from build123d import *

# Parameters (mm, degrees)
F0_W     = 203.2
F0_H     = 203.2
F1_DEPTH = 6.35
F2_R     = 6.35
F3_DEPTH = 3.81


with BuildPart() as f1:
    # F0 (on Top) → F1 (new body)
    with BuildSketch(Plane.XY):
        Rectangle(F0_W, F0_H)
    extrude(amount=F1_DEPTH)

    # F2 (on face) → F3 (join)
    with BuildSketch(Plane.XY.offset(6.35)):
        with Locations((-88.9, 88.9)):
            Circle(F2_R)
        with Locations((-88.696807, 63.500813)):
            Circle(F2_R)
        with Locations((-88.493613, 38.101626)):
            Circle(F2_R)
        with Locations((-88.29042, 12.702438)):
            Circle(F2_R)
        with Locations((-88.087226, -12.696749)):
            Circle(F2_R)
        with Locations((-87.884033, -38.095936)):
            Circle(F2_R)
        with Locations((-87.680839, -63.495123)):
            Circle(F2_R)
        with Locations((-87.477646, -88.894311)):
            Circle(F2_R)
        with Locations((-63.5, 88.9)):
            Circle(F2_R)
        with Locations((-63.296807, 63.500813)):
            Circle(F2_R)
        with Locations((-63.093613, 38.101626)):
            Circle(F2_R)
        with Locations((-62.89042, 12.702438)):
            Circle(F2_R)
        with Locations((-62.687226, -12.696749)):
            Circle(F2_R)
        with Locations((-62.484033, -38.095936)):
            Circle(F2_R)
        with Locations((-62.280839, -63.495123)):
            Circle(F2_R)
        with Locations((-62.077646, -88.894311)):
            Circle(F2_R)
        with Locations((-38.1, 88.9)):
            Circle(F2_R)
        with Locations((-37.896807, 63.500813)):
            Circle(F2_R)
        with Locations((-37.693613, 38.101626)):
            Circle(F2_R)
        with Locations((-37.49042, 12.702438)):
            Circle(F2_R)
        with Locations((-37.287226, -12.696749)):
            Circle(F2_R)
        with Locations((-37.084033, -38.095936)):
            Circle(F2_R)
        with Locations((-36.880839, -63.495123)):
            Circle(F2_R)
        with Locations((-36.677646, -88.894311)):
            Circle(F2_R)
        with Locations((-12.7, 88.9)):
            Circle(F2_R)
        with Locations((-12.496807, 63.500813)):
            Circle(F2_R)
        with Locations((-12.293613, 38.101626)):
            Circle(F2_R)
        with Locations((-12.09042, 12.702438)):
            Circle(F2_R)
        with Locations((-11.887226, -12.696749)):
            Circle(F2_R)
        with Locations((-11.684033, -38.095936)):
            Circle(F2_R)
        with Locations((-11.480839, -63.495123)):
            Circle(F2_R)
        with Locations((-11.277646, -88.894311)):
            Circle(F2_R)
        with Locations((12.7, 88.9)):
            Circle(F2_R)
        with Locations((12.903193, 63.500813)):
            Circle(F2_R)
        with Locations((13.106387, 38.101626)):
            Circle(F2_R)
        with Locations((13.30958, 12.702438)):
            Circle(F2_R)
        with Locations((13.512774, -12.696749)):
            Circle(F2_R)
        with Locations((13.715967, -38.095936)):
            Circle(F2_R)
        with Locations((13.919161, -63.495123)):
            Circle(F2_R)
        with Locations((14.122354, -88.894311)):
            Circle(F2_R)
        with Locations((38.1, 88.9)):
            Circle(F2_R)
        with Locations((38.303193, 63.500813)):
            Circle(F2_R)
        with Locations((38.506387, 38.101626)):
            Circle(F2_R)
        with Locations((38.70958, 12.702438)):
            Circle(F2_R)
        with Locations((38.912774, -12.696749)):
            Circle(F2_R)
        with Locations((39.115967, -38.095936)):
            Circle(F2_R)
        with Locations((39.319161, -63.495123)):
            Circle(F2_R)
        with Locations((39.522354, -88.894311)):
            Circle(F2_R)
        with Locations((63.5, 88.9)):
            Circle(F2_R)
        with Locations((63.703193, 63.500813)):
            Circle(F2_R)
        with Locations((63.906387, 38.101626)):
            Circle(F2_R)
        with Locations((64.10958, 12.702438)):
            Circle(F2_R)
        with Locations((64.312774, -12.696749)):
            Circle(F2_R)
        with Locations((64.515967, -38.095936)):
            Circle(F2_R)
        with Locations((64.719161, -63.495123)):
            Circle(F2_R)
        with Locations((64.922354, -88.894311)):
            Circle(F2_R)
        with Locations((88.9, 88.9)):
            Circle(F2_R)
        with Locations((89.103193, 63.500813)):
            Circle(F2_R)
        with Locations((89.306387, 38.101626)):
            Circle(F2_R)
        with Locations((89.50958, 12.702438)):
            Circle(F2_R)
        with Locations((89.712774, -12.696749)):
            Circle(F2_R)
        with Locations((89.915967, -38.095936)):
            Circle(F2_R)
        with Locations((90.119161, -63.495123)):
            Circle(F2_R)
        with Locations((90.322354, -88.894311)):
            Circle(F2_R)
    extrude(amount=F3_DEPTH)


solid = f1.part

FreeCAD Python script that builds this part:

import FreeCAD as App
import Part
import Sketcher

V = App.Vector
Q = App.Units.Quantity

doc = App.newDocument("Part")
body = doc.addObject("PartDesign::Body", "Body")

# Sketch on XY plane
sketch1 = doc.addObject("Sketcher::SketchObject", "Sketch")
body.addObject(sketch1)
sketch1.AttachmentSupport = (doc.XY_Plane, [""])
sketch1.MapMode = "FlatFace"
sketch1.addGeometry([
    Part.LineSegment(V(-102, 102, 0), V(-102, -102, 0)),
    Part.LineSegment(V(-102, -102, 0), V(102, -102, 0)),
    Part.LineSegment(V(102, -102, 0), V(102, 102, 0)),
    Part.LineSegment(V(102, 102, 0), V(-102, 102, 0)),
], False)
sketch1.addConstraint([
    Sketcher.Constraint("Coincident", 0, 2, 1, 1),
    Sketcher.Constraint("Coincident", 1, 2, 2, 1),
    Sketcher.Constraint("Coincident", 2, 2, 3, 1),
    Sketcher.Constraint("Coincident", 3, 2, 0, 1),
    Sketcher.Constraint("Vertical", 0),
    Sketcher.Constraint("Horizontal", 1),
    Sketcher.Constraint("Vertical", 2),
    Sketcher.Constraint("Horizontal", 3),
    Sketcher.Constraint("Symmetric", 0, 2, 2, 2, -1, 1),
    Sketcher.Constraint("Equal", 3, 0),
    Sketcher.Constraint("DistanceX", 1, 1, 1, 2, Q("8 in")),
])
pad1 = doc.addObject("PartDesign::Pad", "Pad")
body.addObject(pad1)
pad1.Profile = sketch1
pad1.Length = Q("0.25 in")

# Sketch on XY plane
sketch2 = doc.addObject("Sketcher::SketchObject", "Sketch001")
body.addObject(sketch2)
sketch2.AttachmentSupport = (doc.XY_Plane, [""])
sketch2.MapMode = "FlatFace"
sketch2.AttachmentOffset = App.Placement(V(0, 0, 0.25 * 25.4), App.Rotation())
sketch2.addGeometry([
    Part.Circle(V(-89, 89, 0), V(0, 0, 1), 6),  # 0
    Part.Circle(V(-89, 64, 0), V(0, 0, 1), 6),  # 1
    Part.Circle(V(-88, 38, 0), V(0, 0, 1), 6),  # 2
    Part.Circle(V(-88, 13, 0), V(0, 0, 1), 6),  # 3
    Part.Circle(V(-88, -13, 0), V(0, 0, 1), 6),  # 4
    Part.Circle(V(-88, -38, 0), V(0, 0, 1), 6),  # 5
    Part.Circle(V(-88, -63, 0), V(0, 0, 1), 6),  # 6
    Part.Circle(V(-87, -89, 0), V(0, 0, 1), 6),  # 7
    Part.Circle(V(-64, 89, 0), V(0, 0, 1), 6),  # 8
    Part.Circle(V(-63, 64, 0), V(0, 0, 1), 6),  # 9
    Part.Circle(V(-63, 38, 0), V(0, 0, 1), 6),  # 10
    Part.Circle(V(-63, 13, 0), V(0, 0, 1), 6),  # 11
    Part.Circle(V(-63, -13, 0), V(0, 0, 1), 6),  # 12
    Part.Circle(V(-62, -38, 0), V(0, 0, 1), 6),  # 13
    Part.Circle(V(-62, -63, 0), V(0, 0, 1), 6),  # 14
    Part.Circle(V(-62, -89, 0), V(0, 0, 1), 6),  # 15
    Part.Circle(V(-38, 89, 0), V(0, 0, 1), 6),  # 16
    Part.Circle(V(-38, 64, 0), V(0, 0, 1), 6),  # 17
    Part.Circle(V(-38, 38, 0), V(0, 0, 1), 6),  # 18
    Part.Circle(V(-37, 13, 0), V(0, 0, 1), 6),  # 19
    Part.Circle(V(-37, -13, 0), V(0, 0, 1), 6),  # 20
    Part.Circle(V(-37, -38, 0), V(0, 0, 1), 6),  # 21
    Part.Circle(V(-37, -63, 0), V(0, 0, 1), 6),  # 22
    Part.Circle(V(-37, -89, 0), V(0, 0, 1), 6),  # 23
    Part.Circle(V(-13, 89, 0), V(0, 0, 1), 6),  # 24
    Part.Circle(V(-12, 64, 0), V(0, 0, 1), 6),  # 25
    Part.Circle(V(-12, 38, 0), V(0, 0, 1), 6),  # 26
    Part.Circle(V(-12, 13, 0), V(0, 0, 1), 6),  # 27
    Part.Circle(V(-12, -13, 0), V(0, 0, 1), 6),  # 28
    Part.Circle(V(-12, -38, 0), V(0, 0, 1), 6),  # 29
    Part.Circle(V(-11, -63, 0), V(0, 0, 1), 6),  # 30
    Part.Circle(V(-11, -89, 0), V(0, 0, 1), 6),  # 31
    Part.Circle(V(13, 89, 0), V(0, 0, 1), 6),  # 32
    Part.Circle(V(13, 64, 0), V(0, 0, 1), 6),  # 33
    Part.Circle(V(13, 38, 0), V(0, 0, 1), 6),  # 34
    Part.Circle(V(13, 13, 0), V(0, 0, 1), 6),  # 35
    Part.Circle(V(14, -13, 0), V(0, 0, 1), 6),  # 36
    Part.Circle(V(14, -38, 0), V(0, 0, 1), 6),  # 37
    Part.Circle(V(14, -63, 0), V(0, 0, 1), 6),  # 38
    Part.Circle(V(14, -89, 0), V(0, 0, 1), 6),  # 39
    Part.Circle(V(38, 89, 0), V(0, 0, 1), 6),  # 40
    Part.Circle(V(38, 64, 0), V(0, 0, 1), 6),  # 41
    Part.Circle(V(39, 38, 0), V(0, 0, 1), 6),  # 42
    Part.Circle(V(39, 13, 0), V(0, 0, 1), 6),  # 43
    Part.Circle(V(39, -13, 0), V(0, 0, 1), 6),  # 44
    Part.Circle(V(39, -38, 0), V(0, 0, 1), 6),  # 45
    Part.Circle(V(39, -63, 0), V(0, 0, 1), 6),  # 46
    Part.Circle(V(40, -89, 0), V(0, 0, 1), 6),  # 47
    Part.Circle(V(64, 89, 0), V(0, 0, 1), 6),  # 48
    Part.Circle(V(64, 64, 0), V(0, 0, 1), 6),  # 49
    Part.Circle(V(64, 38, 0), V(0, 0, 1), 6),  # 50
    Part.Circle(V(64, 13, 0), V(0, 0, 1), 6),  # 51
    Part.Circle(V(64, -13, 0), V(0, 0, 1), 6),  # 52
    Part.Circle(V(65, -38, 0), V(0, 0, 1), 6),  # 53
    Part.Circle(V(65, -63, 0), V(0, 0, 1), 6),  # 54
    Part.Circle(V(65, -89, 0), V(0, 0, 1), 6),  # 55
    Part.Circle(V(89, 89, 0), V(0, 0, 1), 6),  # 56
    Part.Circle(V(89, 64, 0), V(0, 0, 1), 6),  # 57
    Part.Circle(V(89, 38, 0), V(0, 0, 1), 6),  # 58
    Part.Circle(V(90, 13, 0), V(0, 0, 1), 6),  # 59
    Part.Circle(V(90, -13, 0), V(0, 0, 1), 6),  # 60
    Part.Circle(V(90, -38, 0), V(0, 0, 1), 6),  # 61
    Part.Circle(V(90, -63, 0), V(0, 0, 1), 6),  # 62
    Part.Circle(V(90, -89, 0), V(0, 0, 1), 6),  # 63
], False)
sketch2.addConstraint([
    Sketcher.Constraint("Equal", 0, 1),
    Sketcher.Constraint("Equal", 1, 2),
    Sketcher.Constraint("Equal", 2, 3),
    Sketcher.Constraint("Equal", 3, 4),
    Sketcher.Constraint("Equal", 4, 5),
    Sketcher.Constraint("Equal", 5, 6),
    Sketcher.Constraint("Equal", 6, 7),
    Sketcher.Constraint("Equal", 7, 8),
    Sketcher.Constraint("Equal", 8, 9),
    Sketcher.Constraint("Equal", 9, 10),
    Sketcher.Constraint("Equal", 10, 11),
    Sketcher.Constraint("Equal", 11, 12),
    Sketcher.Constraint("Equal", 12, 13),
    Sketcher.Constraint("Equal", 13, 14),
    Sketcher.Constraint("Equal", 14, 15),
    Sketcher.Constraint("Equal", 15, 16),
    Sketcher.Constraint("Equal", 16, 17),
    Sketcher.Constraint("Equal", 17, 18),
    Sketcher.Constraint("Equal", 18, 19),
    Sketcher.Constraint("Equal", 19, 20),
    Sketcher.Constraint("Equal", 20, 21),
    Sketcher.Constraint("Equal", 21, 22),
    Sketcher.Constraint("Equal", 22, 23),
    Sketcher.Constraint("Equal", 23, 24),
    Sketcher.Constraint("Equal", 24, 25),
    Sketcher.Constraint("Equal", 25, 26),
    Sketcher.Constraint("Equal", 26, 27),
    Sketcher.Constraint("Equal", 27, 28),
    Sketcher.Constraint("Equal", 28, 29),
    Sketcher.Constraint("Equal", 29, 30),
    Sketcher.Constraint("Equal", 30, 31),
    Sketcher.Constraint("Equal", 31, 32),
    Sketcher.Constraint("Equal", 32, 33),
    Sketcher.Constraint("Equal", 33, 34),
    Sketcher.Constraint("Equal", 34, 35),
    Sketcher.Constraint("Equal", 35, 36),
    Sketcher.Constraint("Equal", 36, 37),
    Sketcher.Constraint("Equal", 37, 38),
    Sketcher.Constraint("Equal", 38, 39),
    Sketcher.Constraint("Equal", 39, 40),
    Sketcher.Constraint("Equal", 40, 41),
    Sketcher.Constraint("Equal", 41, 42),
    Sketcher.Constraint("Equal", 42, 43),
    Sketcher.Constraint("Equal", 43, 44),
    Sketcher.Constraint("Equal", 44, 45),
    Sketcher.Constraint("Equal", 45, 46),
    Sketcher.Constraint("Equal", 46, 47),
    Sketcher.Constraint("Equal", 47, 48),
    Sketcher.Constraint("Equal", 48, 49),
    Sketcher.Constraint("Equal", 49, 50),
    Sketcher.Constraint("Equal", 50, 51),
    Sketcher.Constraint("Equal", 51, 52),
    Sketcher.Constraint("Equal", 52, 53),
    Sketcher.Constraint("Equal", 53, 54),
    Sketcher.Constraint("Equal", 54, 55),
    Sketcher.Constraint("Equal", 55, 56),
    Sketcher.Constraint("Equal", 56, 57),
    Sketcher.Constraint("Equal", 57, 58),
    Sketcher.Constraint("Equal", 58, 59),
    Sketcher.Constraint("Equal", 59, 60),
    Sketcher.Constraint("Equal", 60, 61),
    Sketcher.Constraint("Equal", 61, 62),
    Sketcher.Constraint("Equal", 62, 63),
    Sketcher.Constraint("Symmetric", 24, 3, 32, 3, -2),
    Sketcher.Constraint("Symmetric", 16, 3, 40, 3, -2),
    Sketcher.Constraint("Symmetric", 8, 3, 48, 3, -2),
    Sketcher.Constraint("Symmetric", 0, 3, 56, 3, -2),
    Sketcher.Constraint("Horizontal", 0, 3, 8, 3),
    Sketcher.Constraint("Horizontal", 1, 3, 9, 3),
    Sketcher.Constraint("Horizontal", 2, 3, 10, 3),
    Sketcher.Constraint("Horizontal", 3, 3, 11, 3),
    Sketcher.Constraint("Horizontal", 4, 3, 12, 3),
    Sketcher.Constraint("Horizontal", 5, 3, 13, 3),
    Sketcher.Constraint("Horizontal", 6, 3, 14, 3),
    Sketcher.Constraint("Horizontal", 7, 3, 15, 3),
    Sketcher.Constraint("Horizontal", 8, 3, 16, 3),
    Sketcher.Constraint("Horizontal", 9, 3, 17, 3),
    Sketcher.Constraint("Horizontal", 10, 3, 18, 3),
    Sketcher.Constraint("Horizontal", 11, 3, 19, 3),
    Sketcher.Constraint("Horizontal", 12, 3, 20, 3),
    Sketcher.Constraint("Horizontal", 13, 3, 21, 3),
    Sketcher.Constraint("Horizontal", 14, 3, 22, 3),
    Sketcher.Constraint("Horizontal", 15, 3, 23, 3),
    Sketcher.Constraint("Horizontal", 16, 3, 24, 3),
    Sketcher.Constraint("Horizontal", 17, 3, 25, 3),
    Sketcher.Constraint("Horizontal", 18, 3, 26, 3),
    Sketcher.Constraint("Horizontal", 19, 3, 27, 3),
    Sketcher.Constraint("Horizontal", 20, 3, 28, 3),
    Sketcher.Constraint("Horizontal", 21, 3, 29, 3),
    Sketcher.Constraint("Horizontal", 22, 3, 30, 3),
    Sketcher.Constraint("Horizontal", 23, 3, 31, 3),
    Sketcher.Constraint("Horizontal", 25, 3, 33, 3),
    Sketcher.Constraint("Horizontal", 26, 3, 34, 3),
    Sketcher.Constraint("Horizontal", 27, 3, 35, 3),
    Sketcher.Constraint("Horizontal", 28, 3, 36, 3),
    Sketcher.Constraint("Horizontal", 29, 3, 37, 3),
    Sketcher.Constraint("Horizontal", 30, 3, 38, 3),
    Sketcher.Constraint("Horizontal", 31, 3, 39, 3),
    Sketcher.Constraint("Horizontal", 33, 3, 41, 3),
    Sketcher.Constraint("Horizontal", 34, 3, 42, 3),
    Sketcher.Constraint("Horizontal", 35, 3, 43, 3),
    Sketcher.Constraint("Horizontal", 36, 3, 44, 3),
    Sketcher.Constraint("Horizontal", 37, 3, 45, 3),
    Sketcher.Constraint("Horizontal", 38, 3, 46, 3),
    Sketcher.Constraint("Horizontal", 39, 3, 47, 3),
    Sketcher.Constraint("Horizontal", 41, 3, 49, 3),
    Sketcher.Constraint("Horizontal", 42, 3, 50, 3),
    Sketcher.Constraint("Horizontal", 43, 3, 51, 3),
    Sketcher.Constraint("Horizontal", 44, 3, 52, 3),
    Sketcher.Constraint("Horizontal", 45, 3, 53, 3),
    Sketcher.Constraint("Horizontal", 46, 3, 54, 3),
    Sketcher.Constraint("Horizontal", 47, 3, 55, 3),
    Sketcher.Constraint("Horizontal", 49, 3, 57, 3),
    Sketcher.Constraint("Horizontal", 50, 3, 58, 3),
    Sketcher.Constraint("Horizontal", 51, 3, 59, 3),
    Sketcher.Constraint("Horizontal", 52, 3, 60, 3),
    Sketcher.Constraint("Horizontal", 53, 3, 61, 3),
    Sketcher.Constraint("Horizontal", 54, 3, 62, 3),
    Sketcher.Constraint("Horizontal", 55, 3, 63, 3),
    Sketcher.Constraint("Diameter", 0, Q("0.5 in")),
    Sketcher.Constraint("DistanceX", 0, 3, -1, 1, Q("3.5 in")),
    Sketcher.Constraint("DistanceY", -1, 1, 0, 3, Q("3.5 in")),
    Sketcher.Constraint("DistanceX", 8, 3, -1, 1, Q("2.5 in")),
    Sketcher.Constraint("DistanceX", 16, 3, -1, 1, Q("1.5 in")),
    Sketcher.Constraint("DistanceX", 24, 3, -1, 1, Q("0.5 in")),
    Sketcher.Constraint("DistanceX", 3, 3, -1, 1, 88.29042),
    Sketcher.Constraint("DistanceY", -1, 1, 3, 3, 12.702438),
    Sketcher.Constraint("DistanceY", 4, 3, -1, 1, 12.696749),
    Sketcher.Constraint("DistanceX", 6, 3, -1, 1, 87.680839),
    Sketcher.Constraint("DistanceY", 7, 3, -1, 1, 88.894311),
    Sketcher.Constraint("DistanceX", 11, 3, -1, 1, 62.89042),
    Sketcher.Constraint("DistanceX", 14, 3, -1, 1, 62.280839),
    Sketcher.Constraint("DistanceX", 19, 3, -1, 1, 37.49042),
    Sketcher.Constraint("DistanceX", 22, 3, -1, 1, 36.880839),
    Sketcher.Constraint("DistanceX", 27, 3, -1, 1, 12.09042),
    Sketcher.Constraint("DistanceX", 30, 3, -1, 1, 11.480839),
    Sketcher.Constraint("DistanceX", -1, 1, 35, 3, 13.30958),
    Sketcher.Constraint("DistanceX", -1, 1, 38, 3, 13.919161),
    Sketcher.Constraint("DistanceX", -1, 1, 43, 3, 38.70958),
    Sketcher.Constraint("DistanceX", -1, 1, 46, 3, 39.319161),
    Sketcher.Constraint("DistanceX", -1, 1, 51, 3, 64.10958),
    Sketcher.Constraint("DistanceX", -1, 1, 54, 3, 64.719161),
    Sketcher.Constraint("DistanceX", -1, 1, 59, 3, 89.50958),
    Sketcher.Constraint("DistanceX", -1, 1, 62, 3, 90.119161),
    Sketcher.Constraint("DistanceX", 1, 3, -1, 1, 88.696807),
    Sketcher.Constraint("DistanceY", -1, 1, 1, 3, 63.500813),
    Sketcher.Constraint("DistanceX", 2, 3, -1, 1, 88.493613),
    Sketcher.Constraint("DistanceY", -1, 1, 2, 3, 38.101626),
    Sketcher.Constraint("DistanceX", 4, 3, -1, 1, 88.087226),
    Sketcher.Constraint("DistanceX", 5, 3, -1, 1, 87.884033),
    Sketcher.Constraint("DistanceY", 5, 3, -1, 1, 38.095936),
    Sketcher.Constraint("DistanceY", 6, 3, -1, 1, 63.495123),
    Sketcher.Constraint("DistanceX", 7, 3, -1, 1, 87.477646),
    Sketcher.Constraint("DistanceX", 9, 3, -1, 1, 63.296807),
    Sketcher.Constraint("DistanceX", 10, 3, -1, 1, 63.093613),
    Sketcher.Constraint("DistanceX", 12, 3, -1, 1, 62.687226),
    Sketcher.Constraint("DistanceX", 13, 3, -1, 1, 62.484033),
    Sketcher.Constraint("DistanceX", 15, 3, -1, 1, 62.077646),
    Sketcher.Constraint("DistanceX", 17, 3, -1, 1, 37.896807),
    Sketcher.Constraint("DistanceX", 18, 3, -1, 1, 37.693613),
    Sketcher.Constraint("DistanceX", 20, 3, -1, 1, 37.287226),
    Sketcher.Constraint("DistanceX", 21, 3, -1, 1, 37.084033),
    Sketcher.Constraint("DistanceX", 23, 3, -1, 1, 36.677646),
    Sketcher.Constraint("DistanceX", 25, 3, -1, 1, 12.496807),
    Sketcher.Constraint("DistanceX", 26, 3, -1, 1, 12.293613),
    Sketcher.Constraint("DistanceX", 28, 3, -1, 1, 11.887226),
    Sketcher.Constraint("DistanceX", 29, 3, -1, 1, 11.684033),
    Sketcher.Constraint("DistanceX", 31, 3, -1, 1, 11.277646),
    Sketcher.Constraint("DistanceX", -1, 1, 33, 3, 12.903193),
    Sketcher.Constraint("DistanceX", -1, 1, 34, 3, 13.106387),
    Sketcher.Constraint("DistanceX", -1, 1, 36, 3, 13.512774),
    Sketcher.Constraint("DistanceX", -1, 1, 37, 3, 13.715967),
    Sketcher.Constraint("DistanceX", -1, 1, 39, 3, 14.122354),
    Sketcher.Constraint("DistanceX", -1, 1, 41, 3, 38.303193),
    Sketcher.Constraint("DistanceX", -1, 1, 42, 3, 38.506387),
    Sketcher.Constraint("DistanceX", -1, 1, 44, 3, 38.912774),
    Sketcher.Constraint("DistanceX", -1, 1, 45, 3, 39.115967),
    Sketcher.Constraint("DistanceX", -1, 1, 47, 3, 39.522354),
    Sketcher.Constraint("DistanceX", -1, 1, 49, 3, 63.703193),
    Sketcher.Constraint("DistanceX", -1, 1, 50, 3, 63.906387),
    Sketcher.Constraint("DistanceX", -1, 1, 52, 3, 64.312774),
    Sketcher.Constraint("DistanceX", -1, 1, 53, 3, 64.515967),
    Sketcher.Constraint("DistanceX", -1, 1, 55, 3, 64.922354),
    Sketcher.Constraint("DistanceX", -1, 1, 57, 3, 89.103193),
    Sketcher.Constraint("DistanceX", -1, 1, 58, 3, 89.306387),
    Sketcher.Constraint("DistanceX", -1, 1, 60, 3, 89.712774),
    Sketcher.Constraint("DistanceX", -1, 1, 61, 3, 89.915967),
    Sketcher.Constraint("DistanceX", -1, 1, 63, 3, 90.322354),
])
pad2 = doc.addObject("PartDesign::Pad", "Pad001")
body.addObject(pad2)
pad2.Profile = sketch2
pad2.Length = Q("0.15 in")

doc.recompute()
